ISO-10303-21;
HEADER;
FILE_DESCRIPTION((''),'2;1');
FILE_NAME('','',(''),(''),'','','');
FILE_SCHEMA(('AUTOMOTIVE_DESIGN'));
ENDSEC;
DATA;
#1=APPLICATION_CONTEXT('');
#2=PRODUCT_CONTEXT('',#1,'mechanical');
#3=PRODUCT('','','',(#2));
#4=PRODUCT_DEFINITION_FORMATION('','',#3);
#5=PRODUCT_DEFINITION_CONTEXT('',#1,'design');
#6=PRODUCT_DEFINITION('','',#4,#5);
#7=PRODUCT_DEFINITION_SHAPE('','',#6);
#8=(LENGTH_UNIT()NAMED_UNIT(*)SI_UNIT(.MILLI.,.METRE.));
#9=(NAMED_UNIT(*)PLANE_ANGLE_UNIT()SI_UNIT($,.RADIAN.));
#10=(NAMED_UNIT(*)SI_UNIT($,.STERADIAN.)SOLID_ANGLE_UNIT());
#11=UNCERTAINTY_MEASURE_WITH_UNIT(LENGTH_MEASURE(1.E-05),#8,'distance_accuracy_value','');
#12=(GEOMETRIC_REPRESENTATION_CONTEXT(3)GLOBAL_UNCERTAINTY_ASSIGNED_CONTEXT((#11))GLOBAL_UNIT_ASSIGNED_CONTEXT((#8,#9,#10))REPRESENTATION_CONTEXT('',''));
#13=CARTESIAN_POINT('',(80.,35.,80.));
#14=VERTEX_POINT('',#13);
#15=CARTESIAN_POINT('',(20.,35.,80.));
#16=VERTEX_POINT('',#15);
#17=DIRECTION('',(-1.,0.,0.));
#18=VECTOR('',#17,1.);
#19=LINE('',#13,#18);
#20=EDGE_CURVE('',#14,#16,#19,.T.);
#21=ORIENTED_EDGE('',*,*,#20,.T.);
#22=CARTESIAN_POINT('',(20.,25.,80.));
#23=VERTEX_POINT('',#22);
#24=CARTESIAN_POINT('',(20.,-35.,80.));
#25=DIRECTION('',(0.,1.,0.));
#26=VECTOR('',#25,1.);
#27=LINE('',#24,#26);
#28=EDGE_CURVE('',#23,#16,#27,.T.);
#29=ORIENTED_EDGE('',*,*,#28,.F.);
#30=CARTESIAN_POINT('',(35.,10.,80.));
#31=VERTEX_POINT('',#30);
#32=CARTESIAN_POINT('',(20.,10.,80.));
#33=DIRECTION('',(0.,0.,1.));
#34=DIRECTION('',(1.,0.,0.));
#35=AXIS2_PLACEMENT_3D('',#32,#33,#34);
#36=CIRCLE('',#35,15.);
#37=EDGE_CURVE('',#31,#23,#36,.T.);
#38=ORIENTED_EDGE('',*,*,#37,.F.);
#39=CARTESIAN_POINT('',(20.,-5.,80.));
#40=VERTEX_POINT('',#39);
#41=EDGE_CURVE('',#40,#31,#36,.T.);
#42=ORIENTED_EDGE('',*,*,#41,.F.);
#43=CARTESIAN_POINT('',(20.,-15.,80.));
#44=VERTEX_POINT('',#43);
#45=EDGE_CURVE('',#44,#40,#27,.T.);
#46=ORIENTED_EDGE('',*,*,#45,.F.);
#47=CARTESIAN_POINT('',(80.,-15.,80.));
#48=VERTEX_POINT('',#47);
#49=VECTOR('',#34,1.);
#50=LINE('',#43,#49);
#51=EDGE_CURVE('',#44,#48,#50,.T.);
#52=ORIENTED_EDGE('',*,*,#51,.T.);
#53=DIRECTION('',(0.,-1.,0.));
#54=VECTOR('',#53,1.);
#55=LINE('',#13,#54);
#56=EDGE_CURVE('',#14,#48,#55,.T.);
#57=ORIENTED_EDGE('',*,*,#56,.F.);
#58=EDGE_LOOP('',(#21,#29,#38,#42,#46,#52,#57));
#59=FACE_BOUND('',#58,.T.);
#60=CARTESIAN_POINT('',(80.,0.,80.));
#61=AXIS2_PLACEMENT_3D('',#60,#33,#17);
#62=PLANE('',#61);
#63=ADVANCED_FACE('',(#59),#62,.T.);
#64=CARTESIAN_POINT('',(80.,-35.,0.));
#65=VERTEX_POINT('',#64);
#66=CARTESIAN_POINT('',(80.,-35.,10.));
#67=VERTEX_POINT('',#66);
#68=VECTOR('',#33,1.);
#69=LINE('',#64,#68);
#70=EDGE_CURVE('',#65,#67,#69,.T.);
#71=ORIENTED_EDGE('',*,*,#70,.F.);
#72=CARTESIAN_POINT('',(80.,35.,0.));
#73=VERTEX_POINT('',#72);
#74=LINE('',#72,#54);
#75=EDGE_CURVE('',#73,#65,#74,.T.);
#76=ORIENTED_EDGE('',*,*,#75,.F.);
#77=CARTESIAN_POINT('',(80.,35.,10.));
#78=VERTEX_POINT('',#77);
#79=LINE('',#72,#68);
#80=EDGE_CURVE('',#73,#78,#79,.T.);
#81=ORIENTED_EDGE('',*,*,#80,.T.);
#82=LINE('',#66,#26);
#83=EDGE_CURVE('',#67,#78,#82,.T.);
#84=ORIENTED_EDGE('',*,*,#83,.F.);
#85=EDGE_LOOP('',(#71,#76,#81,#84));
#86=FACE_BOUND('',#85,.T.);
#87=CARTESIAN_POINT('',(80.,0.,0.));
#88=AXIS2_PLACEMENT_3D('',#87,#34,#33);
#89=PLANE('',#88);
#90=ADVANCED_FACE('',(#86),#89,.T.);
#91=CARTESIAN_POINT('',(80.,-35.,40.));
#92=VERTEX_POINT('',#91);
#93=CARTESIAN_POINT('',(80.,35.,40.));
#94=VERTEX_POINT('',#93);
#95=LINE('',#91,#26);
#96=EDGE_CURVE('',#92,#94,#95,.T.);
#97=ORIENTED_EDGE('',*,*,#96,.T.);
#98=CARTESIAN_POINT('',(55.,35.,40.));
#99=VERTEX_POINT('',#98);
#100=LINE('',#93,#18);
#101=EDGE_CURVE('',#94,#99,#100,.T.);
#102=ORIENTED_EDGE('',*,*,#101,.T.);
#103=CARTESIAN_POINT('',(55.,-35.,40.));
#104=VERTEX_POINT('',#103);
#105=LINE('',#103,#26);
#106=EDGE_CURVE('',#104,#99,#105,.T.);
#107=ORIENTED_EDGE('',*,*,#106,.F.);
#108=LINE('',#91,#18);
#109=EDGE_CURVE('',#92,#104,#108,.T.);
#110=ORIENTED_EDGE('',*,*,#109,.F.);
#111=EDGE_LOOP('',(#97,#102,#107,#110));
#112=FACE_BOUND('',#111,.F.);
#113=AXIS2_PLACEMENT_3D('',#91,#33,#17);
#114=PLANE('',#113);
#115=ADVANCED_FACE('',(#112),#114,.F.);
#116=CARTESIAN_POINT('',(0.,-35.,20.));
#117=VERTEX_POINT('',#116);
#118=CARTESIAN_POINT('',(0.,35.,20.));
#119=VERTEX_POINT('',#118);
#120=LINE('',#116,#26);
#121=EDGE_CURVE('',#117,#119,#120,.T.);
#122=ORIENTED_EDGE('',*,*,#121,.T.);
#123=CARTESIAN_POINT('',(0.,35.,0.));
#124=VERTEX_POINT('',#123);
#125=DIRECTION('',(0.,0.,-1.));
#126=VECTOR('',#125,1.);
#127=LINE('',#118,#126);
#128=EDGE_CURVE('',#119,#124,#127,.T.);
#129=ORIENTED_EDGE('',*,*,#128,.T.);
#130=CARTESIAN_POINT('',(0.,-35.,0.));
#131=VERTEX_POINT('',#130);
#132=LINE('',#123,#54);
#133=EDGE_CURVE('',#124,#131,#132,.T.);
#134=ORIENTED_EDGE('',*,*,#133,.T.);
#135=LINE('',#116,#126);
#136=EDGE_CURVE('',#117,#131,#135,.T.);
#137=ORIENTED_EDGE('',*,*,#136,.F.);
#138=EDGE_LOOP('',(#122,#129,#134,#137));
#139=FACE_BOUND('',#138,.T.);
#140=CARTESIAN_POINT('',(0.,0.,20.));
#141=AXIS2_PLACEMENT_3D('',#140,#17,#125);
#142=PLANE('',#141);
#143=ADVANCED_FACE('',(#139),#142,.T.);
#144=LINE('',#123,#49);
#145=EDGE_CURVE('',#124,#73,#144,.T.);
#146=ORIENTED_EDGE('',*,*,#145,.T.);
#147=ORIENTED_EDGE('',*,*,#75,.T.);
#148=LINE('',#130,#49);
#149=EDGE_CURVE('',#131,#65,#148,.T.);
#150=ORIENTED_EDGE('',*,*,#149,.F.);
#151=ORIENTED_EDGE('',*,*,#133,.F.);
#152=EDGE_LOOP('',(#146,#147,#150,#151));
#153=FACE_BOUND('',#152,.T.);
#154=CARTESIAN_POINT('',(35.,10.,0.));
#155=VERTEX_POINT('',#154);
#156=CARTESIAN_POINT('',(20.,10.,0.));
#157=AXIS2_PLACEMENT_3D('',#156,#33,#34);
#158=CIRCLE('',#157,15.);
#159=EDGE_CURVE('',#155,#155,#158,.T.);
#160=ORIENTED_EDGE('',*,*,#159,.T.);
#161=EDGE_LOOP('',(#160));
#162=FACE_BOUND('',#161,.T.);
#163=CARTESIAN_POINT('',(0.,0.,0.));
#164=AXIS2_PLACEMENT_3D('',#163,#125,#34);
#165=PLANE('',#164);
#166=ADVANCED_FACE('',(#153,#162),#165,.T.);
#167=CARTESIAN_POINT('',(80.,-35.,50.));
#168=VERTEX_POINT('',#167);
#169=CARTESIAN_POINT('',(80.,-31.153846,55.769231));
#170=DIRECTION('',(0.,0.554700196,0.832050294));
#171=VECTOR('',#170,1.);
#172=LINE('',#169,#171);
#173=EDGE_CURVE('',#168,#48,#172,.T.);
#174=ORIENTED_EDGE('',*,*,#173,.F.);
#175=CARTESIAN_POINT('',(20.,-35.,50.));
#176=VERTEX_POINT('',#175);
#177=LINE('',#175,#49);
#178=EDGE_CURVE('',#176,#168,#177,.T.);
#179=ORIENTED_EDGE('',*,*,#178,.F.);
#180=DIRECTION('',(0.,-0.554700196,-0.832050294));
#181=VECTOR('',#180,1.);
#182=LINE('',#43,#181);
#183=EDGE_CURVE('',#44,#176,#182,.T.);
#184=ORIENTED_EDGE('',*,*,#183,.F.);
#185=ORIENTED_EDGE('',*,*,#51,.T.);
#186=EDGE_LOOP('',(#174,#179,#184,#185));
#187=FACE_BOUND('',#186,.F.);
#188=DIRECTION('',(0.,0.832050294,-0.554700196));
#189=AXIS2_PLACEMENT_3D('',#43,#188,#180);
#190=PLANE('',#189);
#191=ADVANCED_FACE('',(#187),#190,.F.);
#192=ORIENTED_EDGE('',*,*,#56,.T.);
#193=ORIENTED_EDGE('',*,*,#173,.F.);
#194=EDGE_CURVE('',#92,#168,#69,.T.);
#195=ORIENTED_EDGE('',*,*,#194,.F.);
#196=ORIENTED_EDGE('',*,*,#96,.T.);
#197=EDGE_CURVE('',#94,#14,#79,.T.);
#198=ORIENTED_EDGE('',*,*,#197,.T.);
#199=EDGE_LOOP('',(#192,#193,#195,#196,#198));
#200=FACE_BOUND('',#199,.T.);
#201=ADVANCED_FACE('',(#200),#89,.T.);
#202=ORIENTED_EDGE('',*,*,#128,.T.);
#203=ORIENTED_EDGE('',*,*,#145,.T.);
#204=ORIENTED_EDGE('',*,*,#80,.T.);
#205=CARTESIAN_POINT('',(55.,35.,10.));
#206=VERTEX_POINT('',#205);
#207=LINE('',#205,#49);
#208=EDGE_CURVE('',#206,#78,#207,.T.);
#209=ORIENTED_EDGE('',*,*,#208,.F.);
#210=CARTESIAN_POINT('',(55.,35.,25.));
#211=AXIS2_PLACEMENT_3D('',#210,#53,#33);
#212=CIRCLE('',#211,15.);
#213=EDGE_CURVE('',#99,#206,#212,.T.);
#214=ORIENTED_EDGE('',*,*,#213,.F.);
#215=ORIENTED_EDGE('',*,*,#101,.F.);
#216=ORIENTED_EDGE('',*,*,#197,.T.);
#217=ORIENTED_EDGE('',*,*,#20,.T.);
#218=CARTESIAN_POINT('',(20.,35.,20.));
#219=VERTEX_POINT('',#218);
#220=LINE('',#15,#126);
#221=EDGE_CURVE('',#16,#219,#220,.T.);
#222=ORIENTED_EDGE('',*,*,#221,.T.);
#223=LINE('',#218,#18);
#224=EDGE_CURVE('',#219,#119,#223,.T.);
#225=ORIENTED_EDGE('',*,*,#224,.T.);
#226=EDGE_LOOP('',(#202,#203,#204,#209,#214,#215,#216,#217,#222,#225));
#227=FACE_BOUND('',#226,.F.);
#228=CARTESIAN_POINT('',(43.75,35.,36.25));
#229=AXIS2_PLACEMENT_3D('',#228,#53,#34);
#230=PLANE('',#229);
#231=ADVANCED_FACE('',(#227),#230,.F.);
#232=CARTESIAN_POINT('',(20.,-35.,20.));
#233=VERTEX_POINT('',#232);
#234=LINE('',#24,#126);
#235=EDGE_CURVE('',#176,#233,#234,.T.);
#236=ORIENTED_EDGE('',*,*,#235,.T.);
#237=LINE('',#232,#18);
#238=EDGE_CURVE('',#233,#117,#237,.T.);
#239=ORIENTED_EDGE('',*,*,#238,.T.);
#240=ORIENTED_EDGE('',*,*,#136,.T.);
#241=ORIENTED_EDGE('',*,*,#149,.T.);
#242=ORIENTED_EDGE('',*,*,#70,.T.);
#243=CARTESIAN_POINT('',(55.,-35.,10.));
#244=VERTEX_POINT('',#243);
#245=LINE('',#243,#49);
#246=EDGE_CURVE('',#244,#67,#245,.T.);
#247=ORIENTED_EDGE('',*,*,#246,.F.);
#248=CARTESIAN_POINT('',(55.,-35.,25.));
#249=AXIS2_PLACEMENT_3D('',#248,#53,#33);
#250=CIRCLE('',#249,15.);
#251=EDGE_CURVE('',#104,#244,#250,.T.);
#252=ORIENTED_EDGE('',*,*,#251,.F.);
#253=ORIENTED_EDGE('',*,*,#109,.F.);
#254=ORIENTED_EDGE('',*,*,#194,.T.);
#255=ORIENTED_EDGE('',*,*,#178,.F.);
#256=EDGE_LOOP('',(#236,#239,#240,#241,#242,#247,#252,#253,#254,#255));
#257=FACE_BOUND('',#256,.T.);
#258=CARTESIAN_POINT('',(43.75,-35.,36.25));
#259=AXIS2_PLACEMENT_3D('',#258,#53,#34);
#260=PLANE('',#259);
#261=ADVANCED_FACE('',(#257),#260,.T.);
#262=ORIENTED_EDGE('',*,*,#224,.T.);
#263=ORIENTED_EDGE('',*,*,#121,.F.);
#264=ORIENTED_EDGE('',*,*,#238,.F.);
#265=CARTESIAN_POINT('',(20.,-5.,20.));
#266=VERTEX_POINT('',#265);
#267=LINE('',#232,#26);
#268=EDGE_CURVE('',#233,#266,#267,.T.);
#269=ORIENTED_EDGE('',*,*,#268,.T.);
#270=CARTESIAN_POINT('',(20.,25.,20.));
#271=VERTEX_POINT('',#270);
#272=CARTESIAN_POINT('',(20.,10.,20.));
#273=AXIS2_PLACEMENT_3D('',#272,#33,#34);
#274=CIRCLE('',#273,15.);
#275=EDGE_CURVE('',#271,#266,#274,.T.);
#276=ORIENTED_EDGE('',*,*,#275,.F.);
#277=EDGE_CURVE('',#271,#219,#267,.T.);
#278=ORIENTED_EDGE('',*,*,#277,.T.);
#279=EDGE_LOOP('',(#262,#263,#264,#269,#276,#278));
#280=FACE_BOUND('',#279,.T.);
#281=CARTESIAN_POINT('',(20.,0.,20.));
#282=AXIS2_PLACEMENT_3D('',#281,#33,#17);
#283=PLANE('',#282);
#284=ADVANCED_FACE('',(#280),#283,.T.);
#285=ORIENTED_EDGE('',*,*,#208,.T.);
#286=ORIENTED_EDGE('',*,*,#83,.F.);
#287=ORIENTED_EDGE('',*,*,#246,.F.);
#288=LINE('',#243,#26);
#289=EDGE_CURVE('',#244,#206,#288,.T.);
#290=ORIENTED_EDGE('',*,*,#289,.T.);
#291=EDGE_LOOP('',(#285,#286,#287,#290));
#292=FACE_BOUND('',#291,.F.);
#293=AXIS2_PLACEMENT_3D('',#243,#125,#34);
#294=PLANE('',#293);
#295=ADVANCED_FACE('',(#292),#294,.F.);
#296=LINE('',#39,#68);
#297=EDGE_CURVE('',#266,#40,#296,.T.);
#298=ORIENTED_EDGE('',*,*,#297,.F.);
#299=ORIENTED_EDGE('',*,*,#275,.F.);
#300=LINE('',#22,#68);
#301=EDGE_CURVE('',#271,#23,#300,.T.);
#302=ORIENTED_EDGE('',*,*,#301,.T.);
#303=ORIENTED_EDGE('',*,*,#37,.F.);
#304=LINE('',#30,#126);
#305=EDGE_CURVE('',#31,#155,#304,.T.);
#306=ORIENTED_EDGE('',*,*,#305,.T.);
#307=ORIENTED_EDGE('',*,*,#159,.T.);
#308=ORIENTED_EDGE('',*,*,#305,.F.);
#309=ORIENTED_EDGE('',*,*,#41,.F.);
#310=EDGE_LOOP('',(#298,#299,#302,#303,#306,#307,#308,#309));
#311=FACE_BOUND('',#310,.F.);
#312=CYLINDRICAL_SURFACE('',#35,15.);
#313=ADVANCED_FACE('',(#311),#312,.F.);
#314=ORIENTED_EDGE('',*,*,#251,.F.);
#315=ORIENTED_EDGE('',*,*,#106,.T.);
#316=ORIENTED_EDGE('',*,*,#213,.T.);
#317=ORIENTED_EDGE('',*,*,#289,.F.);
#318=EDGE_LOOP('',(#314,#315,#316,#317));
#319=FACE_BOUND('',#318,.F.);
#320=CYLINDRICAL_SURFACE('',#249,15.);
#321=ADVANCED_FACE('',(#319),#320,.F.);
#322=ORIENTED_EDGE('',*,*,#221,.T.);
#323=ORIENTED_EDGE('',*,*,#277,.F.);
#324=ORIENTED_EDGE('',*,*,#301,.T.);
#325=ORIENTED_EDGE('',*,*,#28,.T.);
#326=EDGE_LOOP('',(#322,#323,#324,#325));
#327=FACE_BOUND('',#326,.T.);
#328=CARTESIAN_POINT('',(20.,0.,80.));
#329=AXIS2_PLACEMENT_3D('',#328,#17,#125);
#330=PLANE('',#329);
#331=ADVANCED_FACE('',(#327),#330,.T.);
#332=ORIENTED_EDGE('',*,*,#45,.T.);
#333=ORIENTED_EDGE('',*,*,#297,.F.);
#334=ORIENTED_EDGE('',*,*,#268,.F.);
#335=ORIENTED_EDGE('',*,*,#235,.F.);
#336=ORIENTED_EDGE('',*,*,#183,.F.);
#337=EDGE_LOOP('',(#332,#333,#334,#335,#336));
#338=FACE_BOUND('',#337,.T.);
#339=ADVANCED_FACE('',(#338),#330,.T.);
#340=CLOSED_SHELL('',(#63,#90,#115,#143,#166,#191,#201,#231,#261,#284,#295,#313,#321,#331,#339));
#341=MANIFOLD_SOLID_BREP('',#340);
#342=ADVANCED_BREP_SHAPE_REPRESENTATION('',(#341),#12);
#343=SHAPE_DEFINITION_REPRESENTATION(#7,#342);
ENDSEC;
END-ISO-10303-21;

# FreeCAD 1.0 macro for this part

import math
import FreeCAD as App
import Part
import Sketcher
from FreeCAD import Vector
Q = App.Units.Quantity


def add_polygon(sketch, points):
    """Adds a closed chain of lines whose ends are joined by coincident constraints."""
    first, n = sketch.GeometryCount, len(points)
    for a, b in zip(points, points[1:] + points[:1]):
        sketch.addGeometry(Part.LineSegment(App.Vector(*a, 0), App.Vector(*b, 0)), False)
    for i in range(n):
        sketch.addConstraint(Sketcher.Constraint("Coincident", first + i, 2, first + (i + 1) % n, 1))

doc = App.newDocument("Part")
body = doc.addObject("PartDesign::Body", "Body")

sketch1 = body.newObject("Sketcher::SketchObject", "Sketch")
sketch1.AttachmentSupport = (doc.getObject("XZ_Plane"), [""])
sketch1.MapMode = "FlatFace"
add_polygon(sketch1, [(0, 20), (0, 0), (80, 0), (80, 80), (20, 80), (20, 20)])
sketch1.addConstraint(Sketcher.Constraint("Vertical", 0))
sketch1.addConstraint(Sketcher.Constraint("Horizontal", 1))
sketch1.addConstraint(Sketcher.Constraint("Vertical", 2))
sketch1.addConstraint(Sketcher.Constraint("Horizontal", 3))
sketch1.addConstraint(Sketcher.Constraint("Vertical", 4))
sketch1.addConstraint(Sketcher.Constraint("Horizontal", 5))
sketch1.addConstraint(Sketcher.Constraint("Coincident", 0, 2, -1, 1))
sketch1.addConstraint(Sketcher.Constraint("Equal", 5, 0))
sketch1.addConstraint(Sketcher.Constraint("Equal", 1, 2))
sketch1.addConstraint(Sketcher.Constraint("DistanceX", 1, 1, 1, 2, Q("80 mm")))
sketch1.addConstraint(Sketcher.Constraint("DistanceX", 3, 2, 3, 1, Q("60 mm")))
pad1 = body.newObject("PartDesign::Pad", "Pad")
pad1.Profile = sketch1
pad1.Length = 70
pad1.Midplane = True

sketch2 = body.newObject("Sketcher::SketchObject", "Sketch001")
sketch2.AttachmentSupport = (doc.getObject("XZ_Plane"), [""])
sketch2.MapMode = "FlatFace"
sketch2.AttachmentOffset = App.Placement(Vector(0, 0, 35), App.Rotation())
sketch2.addGeometry(Part.LineSegment(Vector(80, 40, 0), Vector(55, 40, 0)), False)
sketch2.addGeometry(Part.ArcOfCircle(Part.Circle(Vector(55, 25, 0), Vector(0, 0, 1), 15), math.radians(90), math.radians(270)), False)
sketch2.addGeometry(Part.LineSegment(Vector(55, 10, 0), Vector(80, 10, 0)), False)
sketch2.addGeometry(Part.LineSegment(Vector(80, 10, 0), Vector(80, 40, 0)), False)
sketch2.addConstraint(Sketcher.Constraint("Tangent", 0, 2, 1, 1))
sketch2.addConstraint(Sketcher.Constraint("Tangent", 1, 2, 2, 1))
sketch2.addConstraint(Sketcher.Constraint("Coincident", 2, 2, 3, 1))
sketch2.addConstraint(Sketcher.Constraint("Coincident", 3, 2, 0, 1))
sketch2.addConstraint(Sketcher.Constraint("Horizontal", 0))
sketch2.addConstraint(Sketcher.Constraint("Horizontal", 2))
sketch2.addConstraint(Sketcher.Constraint("Vertical", 3))
sketch2.addConstraint(Sketcher.Constraint("Radius", 1, Q("15 mm")))
sketch2.addConstraint(Sketcher.Constraint("DistanceX", 0, 2, 0, 1, Q("25 mm")))
sketch2.addConstraint(Sketcher.Constraint("DistanceX", -1, 1, 1, 3, Q("55 mm")))
sketch2.addConstraint(Sketcher.Constraint("DistanceY", -1, 1, 1, 3, Q("25 mm")))
pocket1 = body.newObject("PartDesign::Pocket", "Pocket")
pocket1.Profile = sketch2
pocket1.Type = "ThroughAll"

sketch3 = body.newObject("Sketcher::SketchObject", "Sketch002")
sketch3.AttachmentSupport = (doc.getObject("XY_Plane"), [""])
sketch3.MapMode = "FlatFace"
sketch3.AttachmentOffset = App.Placement(Vector(0, 0, 80), App.Rotation())
sketch3.addGeometry(Part.Circle(Vector(20, 10, 0), Vector(0, 0, 1), 15), False)
sketch3.addConstraint(Sketcher.Constraint("Diameter", 0, Q("30 mm")))
sketch3.addConstraint(Sketcher.Constraint("DistanceX", -1, 1, 0, 3, Q("20 mm")))
sketch3.addConstraint(Sketcher.Constraint("DistanceY", -1, 1, 0, 3, Q("10 mm")))
pocket2 = body.newObject("PartDesign::Pocket", "Pocket001")
pocket2.Profile = sketch3
pocket2.Type = "ThroughAll"

sketch4 = body.newObject("Sketcher::SketchObject", "Sketch003")
sketch4.AttachmentSupport = (doc.getObject("YZ_Plane"), [""])
sketch4.MapMode = "FlatFace"
sketch4.AttachmentOffset = App.Placement(Vector(0, 0, 20), App.Rotation())
add_polygon(sketch4, [(-35, 80), (-15, 80), (-35, 50)])
sketch4.addConstraint(Sketcher.Constraint("Horizontal", 0))
sketch4.addConstraint(Sketcher.Constraint("Vertical", 2))
sketch4.addConstraint(Sketcher.Constraint("DistanceX", 0, 1, 0, 2, Q("20 mm")))
sketch4.addConstraint(Sketcher.Constraint("DistanceY", 2, 1, 2, 2, Q("30 mm")))
sketch4.addConstraint(Sketcher.Constraint("DistanceX", 0, 2, -1, 1, Q("15 mm")))
sketch4.addConstraint(Sketcher.Constraint("DistanceY", -1, 1, 0, 2, Q("80 mm")))
pocket3 = body.newObject("PartDesign::Pocket", "Pocket002")
pocket3.Profile = sketch4
pocket3.Type = "ThroughAll"
pocket3.Reversed = True

doc.recompute()
